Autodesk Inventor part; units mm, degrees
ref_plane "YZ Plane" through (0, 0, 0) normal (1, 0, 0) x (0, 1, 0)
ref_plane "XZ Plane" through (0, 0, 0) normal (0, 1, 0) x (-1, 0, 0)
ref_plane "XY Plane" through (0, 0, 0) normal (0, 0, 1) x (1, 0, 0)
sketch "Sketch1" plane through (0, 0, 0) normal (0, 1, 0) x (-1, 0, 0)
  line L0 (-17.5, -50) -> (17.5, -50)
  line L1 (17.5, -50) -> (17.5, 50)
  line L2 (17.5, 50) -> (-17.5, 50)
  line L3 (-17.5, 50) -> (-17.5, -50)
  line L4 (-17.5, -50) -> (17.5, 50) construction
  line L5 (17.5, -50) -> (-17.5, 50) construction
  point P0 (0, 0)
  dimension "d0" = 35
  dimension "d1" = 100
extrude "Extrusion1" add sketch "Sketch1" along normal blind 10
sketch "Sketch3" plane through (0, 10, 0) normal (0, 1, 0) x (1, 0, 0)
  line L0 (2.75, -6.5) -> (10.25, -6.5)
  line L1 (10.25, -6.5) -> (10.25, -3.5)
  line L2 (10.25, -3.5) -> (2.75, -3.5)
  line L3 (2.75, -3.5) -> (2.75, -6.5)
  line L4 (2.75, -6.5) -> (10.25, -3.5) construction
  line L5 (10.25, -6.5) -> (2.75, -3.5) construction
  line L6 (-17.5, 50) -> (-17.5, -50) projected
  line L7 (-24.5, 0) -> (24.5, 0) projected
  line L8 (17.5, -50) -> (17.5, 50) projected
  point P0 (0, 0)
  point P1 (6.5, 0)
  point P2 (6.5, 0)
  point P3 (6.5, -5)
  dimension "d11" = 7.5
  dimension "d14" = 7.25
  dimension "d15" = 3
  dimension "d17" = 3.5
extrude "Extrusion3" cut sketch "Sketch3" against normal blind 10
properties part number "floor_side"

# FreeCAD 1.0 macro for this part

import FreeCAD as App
import Part
import Sketcher

V = App.Vector
Q = App.Units.Quantity

doc = App.newDocument("Part")
params = doc.addObject("Spreadsheet::Sheet", "Params")
for row, (alias, value) in enumerate([
    ("sketch1_width", "35 mm"),
    ("sketch1_height", "100 mm"),
    ("pad1_length", "10 mm"),
    ("sketch2_height", "3 mm"),
    ("sketch2_width", "7.5 mm"),
    ("pocket1_length", "10 mm"),
], start=1):
    params.set(f"A{row}", alias)
    params.set(f"B{row}", "=" + value)
    params.setAlias(f"B{row}", alias)

body = doc.addObject("PartDesign::Body", "Body")

# Sketch on XZ plane
sketch1 = body.newObject("Sketcher::SketchObject", "Sketch")
sketch1.AttachmentSupport = (doc.getObject("XZ_Plane"), [""])
sketch1.MapMode = "FlatFace"
sketch1.addGeometry(Part.LineSegment(V(18, 50, 0), V(18, -50, 0)), False)
sketch1.addGeometry(Part.LineSegment(V(18, -50, 0), V(-18, -50, 0)), False)
sketch1.addGeometry(Part.LineSegment(V(-18, -50, 0), V(-18, 50, 0)), False)
sketch1.addGeometry(Part.LineSegment(V(-18, 50, 0), V(18, 50, 0)), False)
sketch1.addConstraint(Sketcher.Constraint("Coincident", 0, 2, 1, 1))
sketch1.addConstraint(Sketcher.Constraint("Coincident", 1, 2, 2, 1))
sketch1.addConstraint(Sketcher.Constraint("Coincident", 2, 2, 3, 1))
sketch1.addConstraint(Sketcher.Constraint("Coincident", 3, 2, 0, 1))
sketch1.addConstraint(Sketcher.Constraint("Vertical", 0))
sketch1.addConstraint(Sketcher.Constraint("Horizontal", 1))
sketch1.addConstraint(Sketcher.Constraint("Vertical", 2))
sketch1.addConstraint(Sketcher.Constraint("Horizontal", 3))
sketch1.addConstraint(Sketcher.Constraint("Symmetric", 0, 2, 2, 2, -1, 1))
sketch1.addConstraint(Sketcher.Constraint("DistanceX", 1, 2, 1, 1, Q("35 mm")))
sketch1.addConstraint(Sketcher.Constraint("DistanceY", 0, 2, 0, 1, Q("100 mm")))
sketch1.setExpression("Constraints[9]", "Params.sketch1_width")
sketch1.setExpression("Constraints[10]", "Params.sketch1_height")
pad1 = body.newObject("PartDesign::Pad", "Pad")
pad1.Profile = sketch1
pad1.setExpression("Length", "Params.pad1_length")
pad1.Reversed = True

# Sketch on XZ plane
sketch2 = body.newObject("Sketcher::SketchObject", "Sketch001")
sketch2.AttachmentSupport = (doc.getObject("XZ_Plane"), [""])
sketch2.MapMode = "FlatFace"
sketch2.AttachmentOffset = App.Placement(V(0, 0, -10), App.Rotation())
sketch2.addGeometry(Part.LineSegment(V(2.8, 3.5, 0), V(2.8, 6.5, 0)), False)
sketch2.addGeometry(Part.LineSegment(V(2.8, 6.5, 0), V(10.2, 6.5, 0)), False)
sketch2.addGeometry(Part.LineSegment(V(10.2, 6.5, 0), V(10.2, 3.5, 0)), False)
sketch2.addGeometry(Part.LineSegment(V(10.2, 3.5, 0), V(2.8, 3.5, 0)), False)
sketch2.addConstraint(Sketcher.Constraint("Coincident", 0, 2, 1, 1))
sketch2.addConstraint(Sketcher.Constraint("Coincident", 1, 2, 2, 1))
sketch2.addConstraint(Sketcher.Constraint("Coincident", 2, 2, 3, 1))
sketch2.addConstraint(Sketcher.Constraint("Coincident", 3, 2, 0, 1))
sketch2.addConstraint(Sketcher.Constraint("Vertical", 0))
sketch2.addConstraint(Sketcher.Constraint("Horizontal", 1))
sketch2.addConstraint(Sketcher.Constraint("Vertical", 2))
sketch2.addConstraint(Sketcher.Constraint("Horizontal", 3))
sketch2.addConstraint(Sketcher.Constraint("DistanceY", 0, 1, 0, 2, Q("3 mm")))
sketch2.addConstraint(Sketcher.Constraint("DistanceX", 1, 1, 1, 2, Q("7.5 mm")))
sketch2.addConstraint(Sketcher.Constraint("DistanceY", -1, 1, 2, 2, Q("3.5 mm")))
sketch2.addConstraint(Sketcher.Constraint("DistanceX", -1, 1, 0, 2, Q("2.75 mm")))
sketch2.setExpression("Constraints[8]", "Params.sketch2_height")
sketch2.setExpression("Constraints[9]", "Params.sketch2_width")
pocket1 = body.newObject("PartDesign::Pocket", "Pocket")
pocket1.Profile = sketch2
pocket1.setExpression("Length", "Params.pocket1_length")
pocket1.Reversed = True

doc.recompute()
